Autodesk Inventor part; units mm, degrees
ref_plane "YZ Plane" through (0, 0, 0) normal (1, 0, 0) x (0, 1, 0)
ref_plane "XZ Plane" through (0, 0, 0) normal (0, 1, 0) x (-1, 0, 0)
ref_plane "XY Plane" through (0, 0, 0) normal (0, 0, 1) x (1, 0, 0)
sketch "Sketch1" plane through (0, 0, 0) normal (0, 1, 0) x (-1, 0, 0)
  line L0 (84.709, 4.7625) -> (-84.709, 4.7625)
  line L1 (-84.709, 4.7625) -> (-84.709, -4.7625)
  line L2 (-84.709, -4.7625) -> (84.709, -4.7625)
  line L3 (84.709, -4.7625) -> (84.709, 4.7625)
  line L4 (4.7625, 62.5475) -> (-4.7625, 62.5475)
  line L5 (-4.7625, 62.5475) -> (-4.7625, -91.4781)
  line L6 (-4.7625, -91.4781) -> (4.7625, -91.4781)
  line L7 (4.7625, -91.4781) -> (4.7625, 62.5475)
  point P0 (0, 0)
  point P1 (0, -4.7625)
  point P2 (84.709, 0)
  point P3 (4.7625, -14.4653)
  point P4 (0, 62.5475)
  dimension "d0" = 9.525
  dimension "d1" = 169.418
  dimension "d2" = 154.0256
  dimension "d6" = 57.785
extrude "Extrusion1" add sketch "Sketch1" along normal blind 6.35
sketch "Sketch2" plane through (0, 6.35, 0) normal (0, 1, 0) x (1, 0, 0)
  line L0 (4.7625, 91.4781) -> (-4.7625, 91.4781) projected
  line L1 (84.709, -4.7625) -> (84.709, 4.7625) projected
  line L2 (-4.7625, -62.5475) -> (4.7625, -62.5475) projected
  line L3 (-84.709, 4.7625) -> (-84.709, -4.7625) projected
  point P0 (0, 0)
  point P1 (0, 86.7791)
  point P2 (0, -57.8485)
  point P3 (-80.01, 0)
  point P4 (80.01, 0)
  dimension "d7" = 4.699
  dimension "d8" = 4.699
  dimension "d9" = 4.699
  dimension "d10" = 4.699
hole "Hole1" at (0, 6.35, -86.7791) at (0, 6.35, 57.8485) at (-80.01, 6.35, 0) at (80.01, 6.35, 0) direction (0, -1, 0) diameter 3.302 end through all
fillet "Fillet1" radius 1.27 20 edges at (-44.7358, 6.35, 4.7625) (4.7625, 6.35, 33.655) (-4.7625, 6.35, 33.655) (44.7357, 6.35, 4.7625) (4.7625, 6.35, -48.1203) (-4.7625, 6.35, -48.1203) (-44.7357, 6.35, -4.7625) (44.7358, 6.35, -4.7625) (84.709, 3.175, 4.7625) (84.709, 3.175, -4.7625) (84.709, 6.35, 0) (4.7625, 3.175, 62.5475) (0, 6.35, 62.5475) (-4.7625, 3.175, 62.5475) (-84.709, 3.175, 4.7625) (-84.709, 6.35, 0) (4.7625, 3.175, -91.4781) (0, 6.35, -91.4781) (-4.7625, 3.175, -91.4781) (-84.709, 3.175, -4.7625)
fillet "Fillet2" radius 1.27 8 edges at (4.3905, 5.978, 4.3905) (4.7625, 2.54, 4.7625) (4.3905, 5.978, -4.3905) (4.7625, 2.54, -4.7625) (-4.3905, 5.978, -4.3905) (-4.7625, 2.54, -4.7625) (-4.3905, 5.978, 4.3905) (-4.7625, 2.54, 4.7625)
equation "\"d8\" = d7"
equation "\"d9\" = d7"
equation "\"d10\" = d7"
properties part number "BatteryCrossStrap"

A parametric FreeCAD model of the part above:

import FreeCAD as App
import Part
import Sketcher
from FreeCAD import Vector
Q = App.Units.Quantity


def edges_at(feature, points):
    """Names of the edges that pass closest to the given points."""
    edges = feature.Shape.Edges
    near = lambda p: min(range(len(edges)), key=lambda i: edges[i].distToShape(Part.Vertex(*p))[0])
    return sorted({f"Edge{near(p) + 1}" for p in points})


def add_polygon(sketch, points):
    """Adds a closed chain of lines whose ends are joined by coincident constraints."""
    first, n = sketch.GeometryCount, len(points)
    for a, b in zip(points, points[1:] + points[:1]):
        sketch.addGeometry(Part.LineSegment(App.Vector(*a, 0), App.Vector(*b, 0)), False)
    for i in range(n):
        sketch.addConstraint(Sketcher.Constraint("Coincident", first + i, 2, first + (i + 1) % n, 1))

doc = App.newDocument("Part")
params = doc.addObject("Spreadsheet::Sheet", "Params")
for row, (alias, value) in enumerate([
    ("sketch1_width", "0.375 in"),
    ("sketch1_height", "2.275 in"),
    ("sketch1_height2", "3.414 in"),
    ("pad1_length", "0.25 in"),
    ("sketch2_diameter", "0.13 in"),
    ("hole_diameter", "0.13 in"),
    ("fillet_radius", "0.05 in"),
    ("fillet2_radius", "0.05 in"),
], start=1):
    params.set(f"A{row}", alias)
    params.set(f"B{row}", "=" + value)
    params.setAlias(f"B{row}", alias)

body = doc.addObject("PartDesign::Body", "Body")

sketch1 = body.newObject("Sketcher::SketchObject", "Sketch")
sketch1.AttachmentSupport = (doc.getObject("XZ_Plane"), [""])
sketch1.MapMode = "FlatFace"
add_polygon(sketch1, [(-85, -5), (-85, 5), (-5, 5), (-5, 63), (5, 63), (5, 5), (85, 5), (85, -5), (5, -5), (5, -91), (-5, -91), (-5, -5)])
sketch1.addConstraint([
    Sketcher.Constraint("Vertical", 0),
    Sketcher.Constraint("Horizontal", 1),
    Sketcher.Constraint("Vertical", 2),
    Sketcher.Constraint("Horizontal", 3),
    Sketcher.Constraint("Vertical", 4),
    Sketcher.Constraint("Horizontal", 5),
    Sketcher.Constraint("Vertical", 6),
    Sketcher.Constraint("Horizontal", 7),
    Sketcher.Constraint("Vertical", 8),
    Sketcher.Constraint("Horizontal", 9),
    Sketcher.Constraint("Vertical", 10),
    Sketcher.Constraint("Horizontal", 11),
    Sketcher.Constraint("Symmetric", 0, 2, 6, 2, -1, 1),
    Sketcher.Constraint("Symmetric", 4, 2, 10, 2, -1, 1),
    Sketcher.Constraint("Symmetric", 1, 2, 4, 2, -2),
    Sketcher.Constraint("Vertical", 4, 2, 7, 2),
    Sketcher.Constraint("Equal", 9, 0),
    Sketcher.Constraint("DistanceX", 3, 1, 3, 2, Q("0.375 in")),
    Sketcher.Constraint("DistanceY", 2, 1, 2, 2, Q("2.275 in")),
    Sketcher.Constraint("DistanceX", 0, 2, 5, 2, Q("6.67 in")),
    Sketcher.Constraint("DistanceY", 8, 2, 8, 1, Q("3.414 in")),
])
sketch1.setExpression("Constraints[29]", "Params.sketch1_width")
sketch1.setExpression("Constraints[30]", "Params.sketch1_height")
sketch1.setExpression("Constraints[32]", "Params.sketch1_height2")
pad1 = body.newObject("PartDesign::Pad", "Pad")
pad1.Profile = sketch1
pad1.setExpression("Length", "Params.pad1_length")
pad1.Reversed = True

sketch2 = body.newObject("Sketcher::SketchObject", "Sketch001")
sketch2.AttachmentSupport = (doc.getObject("XZ_Plane"), [""])
sketch2.MapMode = "FlatFace"
sketch2.AttachmentOffset = App.Placement(Vector(0, 0, -0.25 * 25.4), App.Rotation())
sketch2.addGeometry([
    Part.Circle(Vector(0, -86.8, 0), Vector(0, 0, 1), 1.7),
    Part.Circle(Vector(0, 57.8, 0), Vector(0, 0, 1), 1.7),
    Part.Circle(Vector(-80, 0, 0), Vector(0, 0, 1), 1.7),
    Part.Circle(Vector(80, 0, 0), Vector(0, 0, 1), 1.7),
], False)
sketch2.addConstraint([
    Sketcher.Constraint("Equal", 0, 1),
    Sketcher.Constraint("Equal", 1, 2),
    Sketcher.Constraint("Equal", 2, 3),
    Sketcher.Constraint("Symmetric", 2, 3, 3, 3, -1, 1),
    Sketcher.Constraint("PointOnObject", 0, 3, -2),
    Sketcher.Constraint("PointOnObject", 1, 3, -2),
    Sketcher.Constraint("PointOnObject", 2, 3, -1),
    Sketcher.Constraint("Diameter", 0, Q("0.13 in")),
    Sketcher.Constraint("DistanceX", 2, 3, 3, 3, Q("6.3 in")),
    Sketcher.Constraint("DistanceY", 0, 3, 1, 3, Q("5.694 in")),
    Sketcher.Constraint("DistanceY", 0, 3, -1, 1, Q("3.4165 in")),
])
sketch2.setExpression("Constraints[7]", "Params.sketch2_diameter")
doc.recompute()
hole = body.newObject("PartDesign::Hole", "Hole")
hole.Profile = sketch2
hole.ThreadType = "None"
hole.setExpression("Diameter", "Params.hole_diameter")
hole.DepthType = "ThroughAll"
hole.Reversed = True
doc.recompute()

fillet = body.newObject("PartDesign::Fillet", "Fillet")
fillet.Base = (hole, edges_at(hole, [
    (-44.736, 6.35, 4.763),
    (4.763, 6.35, 33.655),
    (-4.763, 6.35, 33.655),
    (44.736, 6.35, 4.763),
    (4.763, 6.35, -48.12),
    (-4.763, 6.35, -48.12),
    (-44.736, 6.35, -4.763),
    (44.736, 6.35, -4.763),
    (84.709, 3.175, 4.763),
    (84.709, 3.175, -4.763),
    (84.709, 6.35, 0),
    (4.763, 3.175, 62.547),
    (0, 6.35, 62.547),
    (-4.763, 3.175, 62.547),
    (-84.709, 3.175, 4.763),
    (-84.709, 6.35, 0),
    (4.763, 3.175, -91.478),
    (0, 6.35, -91.478),
    (-4.763, 3.175, -91.478),
    (-84.709, 3.175, -4.763),
]))
fillet.setExpression("Radius", "Params.fillet_radius")
doc.recompute()

fillet2 = body.newObject("PartDesign::Fillet", "Fillet001")
fillet2.Base = (fillet, edges_at(fillet, [
    (4.391, 5.978, 4.391),
    (4.763, 2.54, 4.763),
    (4.391, 5.978, -4.391),
    (4.763, 2.54, -4.763),
    (-4.391, 5.978, -4.391),
    (-4.763, 2.54, -4.763),
    (-4.391, 5.978, 4.391),
    (-4.763, 2.54, 4.763),
]))
fillet2.setExpression("Radius", "Params.fillet2_radius")

doc.recompute()
